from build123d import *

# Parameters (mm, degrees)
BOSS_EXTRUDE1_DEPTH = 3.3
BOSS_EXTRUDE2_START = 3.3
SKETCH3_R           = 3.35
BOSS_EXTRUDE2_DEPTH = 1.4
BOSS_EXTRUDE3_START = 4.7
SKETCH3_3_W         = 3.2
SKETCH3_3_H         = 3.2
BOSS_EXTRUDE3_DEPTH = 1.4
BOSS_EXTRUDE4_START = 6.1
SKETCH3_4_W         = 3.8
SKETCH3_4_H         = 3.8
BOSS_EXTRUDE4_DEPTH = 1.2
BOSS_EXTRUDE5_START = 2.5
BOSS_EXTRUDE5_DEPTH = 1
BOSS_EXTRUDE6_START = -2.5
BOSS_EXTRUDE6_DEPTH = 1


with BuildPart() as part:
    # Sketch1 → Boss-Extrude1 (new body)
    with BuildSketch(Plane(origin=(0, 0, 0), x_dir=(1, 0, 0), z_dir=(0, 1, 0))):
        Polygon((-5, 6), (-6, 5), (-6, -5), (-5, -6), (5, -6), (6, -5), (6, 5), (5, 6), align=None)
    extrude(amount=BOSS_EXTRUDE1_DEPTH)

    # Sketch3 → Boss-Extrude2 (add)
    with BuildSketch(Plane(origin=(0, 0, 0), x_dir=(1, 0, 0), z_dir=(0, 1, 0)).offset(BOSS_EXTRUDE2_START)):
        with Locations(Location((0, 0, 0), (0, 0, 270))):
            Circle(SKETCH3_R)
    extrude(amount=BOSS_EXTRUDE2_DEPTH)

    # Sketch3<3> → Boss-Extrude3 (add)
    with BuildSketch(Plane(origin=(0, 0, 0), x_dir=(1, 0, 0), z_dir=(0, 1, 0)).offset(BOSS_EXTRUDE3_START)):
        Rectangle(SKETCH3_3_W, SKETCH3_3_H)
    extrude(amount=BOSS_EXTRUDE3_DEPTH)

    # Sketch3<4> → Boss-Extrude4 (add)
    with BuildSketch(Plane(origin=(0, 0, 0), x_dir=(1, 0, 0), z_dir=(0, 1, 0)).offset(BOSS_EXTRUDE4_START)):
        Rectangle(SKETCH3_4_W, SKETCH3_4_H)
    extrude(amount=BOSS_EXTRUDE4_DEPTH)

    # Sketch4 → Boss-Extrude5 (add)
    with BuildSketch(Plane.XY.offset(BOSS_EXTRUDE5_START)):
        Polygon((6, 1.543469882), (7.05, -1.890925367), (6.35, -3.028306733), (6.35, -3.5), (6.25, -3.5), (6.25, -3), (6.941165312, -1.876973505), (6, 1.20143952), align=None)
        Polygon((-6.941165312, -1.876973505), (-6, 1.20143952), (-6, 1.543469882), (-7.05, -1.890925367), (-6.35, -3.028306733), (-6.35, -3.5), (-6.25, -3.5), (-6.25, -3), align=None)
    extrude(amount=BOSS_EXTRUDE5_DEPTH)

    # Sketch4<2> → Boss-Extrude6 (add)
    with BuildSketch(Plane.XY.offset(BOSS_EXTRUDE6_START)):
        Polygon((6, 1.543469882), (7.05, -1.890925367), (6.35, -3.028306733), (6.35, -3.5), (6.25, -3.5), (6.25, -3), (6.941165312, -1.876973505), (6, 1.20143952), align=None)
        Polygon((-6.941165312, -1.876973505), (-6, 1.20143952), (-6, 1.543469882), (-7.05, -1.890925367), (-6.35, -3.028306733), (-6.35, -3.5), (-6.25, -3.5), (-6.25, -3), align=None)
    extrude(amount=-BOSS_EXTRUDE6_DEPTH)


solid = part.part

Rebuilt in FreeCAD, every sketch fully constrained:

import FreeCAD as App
import Part
import Sketcher
from FreeCAD import Vector
Q = App.Units.Quantity


def add_polygon(sketch, points):
    """Adds a closed chain of lines whose ends are joined by coincident constraints."""
    first, n = sketch.GeometryCount, len(points)
    for a, b in zip(points, points[1:] + points[:1]):
        sketch.addGeometry(Part.LineSegment(App.Vector(*a, 0), App.Vector(*b, 0)), False)
    for i in range(n):
        sketch.addConstraint(Sketcher.Constraint("Coincident", first + i, 2, first + (i + 1) % n, 1))

doc = App.newDocument("Part")
body = doc.addObject("PartDesign::Body", "Body")

sketch1 = doc.addObject("Sketcher::SketchObject", "Sketch")
body.addObject(sketch1)
sketch1.AttachmentSupport = (doc.XZ_Plane, [""])
sketch1.MapMode = "FlatFace"
add_polygon(sketch1, [(-5, -6), (-6, -5), (-6, 5), (-5, 6), (5, 6), (6, 5), (6, -5), (5, -6)])
sketch1.addConstraint(Sketcher.Constraint("Vertical", 1))
sketch1.addConstraint(Sketcher.Constraint("Horizontal", 3))
sketch1.addConstraint(Sketcher.Constraint("Vertical", 5))
sketch1.addConstraint(Sketcher.Constraint("Horizontal", 7))
sketch1.addConstraint(Sketcher.Constraint("Symmetric", 0, 2, 4, 2, -1, 1))
sketch1.addConstraint(Sketcher.Constraint("Symmetric", 2, 2, 6, 2, -1, 1))
sketch1.addConstraint(Sketcher.Constraint("Perpendicular", 0, 2))
sketch1.addConstraint(Sketcher.Constraint("Perpendicular", 2, 4))
sketch1.addConstraint(Sketcher.Constraint("Perpendicular", 4, 6))
sketch1.addConstraint(Sketcher.Constraint("Horizontal", 1, 2, 4, 2))
sketch1.addConstraint(Sketcher.Constraint("Vertical", 3, 2, 6, 2))
sketch1.addConstraint(Sketcher.Constraint("Equal", 7, 1))
sketch1.addConstraint(Sketcher.Constraint("DistanceX", 3, 1, 3, 2, 10.0))
sketch1.addConstraint(Sketcher.Constraint("DistanceX", 0, 2, -1, 1, 6.0))
pad1 = doc.addObject("PartDesign::Pad", "Pad")
body.addObject(pad1)
pad1.Profile = sketch1
pad1.Length = 3.3
pad1.Reversed = True

sketch2 = doc.addObject("Sketcher::SketchObject", "Sketch001")
body.addObject(sketch2)
sketch2.AttachmentSupport = (doc.XZ_Plane, [""])
sketch2.MapMode = "FlatFace"
sketch2.AttachmentOffset = App.Placement(Vector(0, 0, -3.3), App.Rotation())
sketch2.addGeometry(Part.Circle(Vector(0, 0, 0), Vector(0, 0, 1), 3.35), False)
sketch2.addConstraint(Sketcher.Constraint("Coincident", 0, 3, -1, 1))
sketch2.addConstraint(Sketcher.Constraint("Diameter", 0, 6.7))
pad2 = doc.addObject("PartDesign::Pad", "Pad001")
body.addObject(pad2)
pad2.Profile = sketch2
pad2.Length = 1.4
pad2.Reversed = True

sketch3 = doc.addObject("Sketcher::SketchObject", "Sketch002")
body.addObject(sketch3)
sketch3.AttachmentSupport = (doc.XZ_Plane, [""])
sketch3.MapMode = "FlatFace"
sketch3.AttachmentOffset = App.Placement(Vector(0, 0, -4.7), App.Rotation())
add_polygon(sketch3, [(-1.6, -1.6), (-1.6, 1.6), (1.6, 1.6), (1.6, -1.6)])
sketch3.addConstraint(Sketcher.Constraint("Vertical", 0))
sketch3.addConstraint(Sketcher.Constraint("Horizontal", 1))
sketch3.addConstraint(Sketcher.Constraint("Vertical", 2))
sketch3.addConstraint(Sketcher.Constraint("Horizontal", 3))
sketch3.addConstraint(Sketcher.Constraint("Symmetric", 0, 2, 2, 2, -1, 1))
sketch3.addConstraint(Sketcher.Constraint("Equal", 3, 0))
sketch3.addConstraint(Sketcher.Constraint("DistanceX", 1, 1, 1, 2, 3.2))
pad3 = doc.addObject("PartDesign::Pad", "Pad002")
body.addObject(pad3)
pad3.Profile = sketch3
pad3.Length = 1.4
pad3.Reversed = True

sketch4 = doc.addObject("Sketcher::SketchObject", "Sketch003")
body.addObject(sketch4)
sketch4.AttachmentSupport = (doc.XZ_Plane, [""])
sketch4.MapMode = "FlatFace"
sketch4.AttachmentOffset = App.Placement(Vector(0, 0, -6.1), App.Rotation())
add_polygon(sketch4, [(-1.9, -1.9), (-1.9, 1.9), (1.9, 1.9), (1.9, -1.9)])
sketch4.addConstraint(Sketcher.Constraint("Vertical", 0))
sketch4.addConstraint(Sketcher.Constraint("Horizontal", 1))
sketch4.addConstraint(Sketcher.Constraint("Vertical", 2))
sketch4.addConstraint(Sketcher.Constraint("Horizontal", 3))
sketch4.addConstraint(Sketcher.Constraint("Symmetric", 0, 2, 2, 2, -1, 1))
sketch4.addConstraint(Sketcher.Constraint("Equal", 3, 0))
sketch4.addConstraint(Sketcher.Constraint("DistanceX", 1, 1, 1, 2, 3.8))
pad4 = doc.addObject("PartDesign::Pad", "Pad003")
body.addObject(pad4)
pad4.Profile = sketch4
pad4.Length = 1.2
pad4.Reversed = True

sketch5 = doc.addObject("Sketcher::SketchObject", "Sketch004")
body.addObject(sketch5)
sketch5.AttachmentSupport = (doc.XY_Plane, [""])
sketch5.MapMode = "FlatFace"
sketch5.AttachmentOffset = App.Placement(Vector(0, 0, 2.5), App.Rotation())
add_polygon(sketch5, [(7.05, -1.890925), (6, 1.54347), (6, 1.20144), (6.941165, -1.876974), (6.25, -3), (6.25, -3.5), (6.35, -3.5), (6.35, -3.028307)])
add_polygon(sketch5, [(-6.941165, -1.876974), (-6, 1.20144), (-6, 1.54347), (-7.05, -1.890925), (-6.35, -3.028307), (-6.35, -3.5), (-6.25, -3.5), (-6.25, -3)])
sketch5.addConstraint(Sketcher.Constraint("Vertical", 1))
sketch5.addConstraint(Sketcher.Constraint("Vertical", 4))
sketch5.addConstraint(Sketcher.Constraint("Horizontal", 5))
sketch5.addConstraint(Sketcher.Constraint("Vertical", 6))
sketch5.addConstraint(Sketcher.Constraint("Vertical", 9))
sketch5.addConstraint(Sketcher.Constraint("Vertical", 12))
sketch5.addConstraint(Sketcher.Constraint("Horizontal", 13))
sketch5.addConstraint(Sketcher.Constraint("Vertical", 14))
sketch5.addConstraint(Sketcher.Constraint("Symmetric", 1, 2, 8, 2, -2))
sketch5.addConstraint(Sketcher.Constraint("Symmetric", 7, 2, 10, 2, -2))
sketch5.addConstraint(Sketcher.Constraint("Symmetric", 6, 2, 11, 2, -2))
sketch5.addConstraint(Sketcher.Constraint("Symmetric", 4, 2, 13, 2, -2))
sketch5.addConstraint(Sketcher.Constraint("Symmetric", 2, 2, 15, 2, -2))
sketch5.addConstraint(Sketcher.Constraint("Parallel", 0, 2))
sketch5.addConstraint(Sketcher.Constraint("Parallel", 3, 7))
sketch5.addConstraint(Sketcher.Constraint("Parallel", 8, 10))
sketch5.addConstraint(Sketcher.Constraint("Parallel", 11, 15))
sketch5.addConstraint(Sketcher.Constraint("Angle", 0, Q("107 deg")))
sketch5.addConstraint(Sketcher.Constraint("DistanceX", 5, 1, 5, 2, 0.1))
sketch5.addConstraint(Sketcher.Constraint("DistanceY", 4, 2, 4, 1, 0.5))
sketch5.addConstraint(Sketcher.Constraint("DistanceX", -1, 1, 0, 2, 6.0))
sketch5.addConstraint(Sketcher.Constraint("DistanceY", 3, 2, -1, 1, 3.0))
sketch5.addConstraint(Sketcher.Constraint("DistanceX", 6, 2, 7, 2, 0.7))
sketch5.addConstraint(Sketcher.Constraint("DistanceX", 10, 2, 3, 2, 13.3))
sketch5.addConstraint(Sketcher.Constraint("DistanceY", 1, 2, 1, 1, 0.34203))
sketch5.addConstraint(Sketcher.Constraint("Distance", 2, 3.219071))
sketch5.addConstraint(Sketcher.Constraint("Distance", 7, 1.335528))
pad5 = doc.addObject("PartDesign::Pad", "Pad004")
body.addObject(pad5)
pad5.Profile = sketch5
pad5.Length = 1

sketch6 = doc.addObject("Sketcher::SketchObject", "Sketch005")
body.addObject(sketch6)
sketch6.AttachmentSupport = (doc.XY_Plane, [""])
sketch6.MapMode = "FlatFace"
sketch6.AttachmentOffset = App.Placement(Vector(0, 0, -2.5), App.Rotation())
add_polygon(sketch6, [(7.05, -1.890925), (6, 1.54347), (6, 1.20144), (6.941165, -1.876974), (6.25, -3), (6.25, -3.5), (6.35, -3.5), (6.35, -3.028307)])
add_polygon(sketch6, [(-6.941165, -1.876974), (-6, 1.20144), (-6, 1.54347), (-7.05, -1.890925), (-6.35, -3.028307), (-6.35, -3.5), (-6.25, -3.5), (-6.25, -3)])
sketch6.addConstraint(Sketcher.Constraint("Vertical", 1))
sketch6.addConstraint(Sketcher.Constraint("Vertical", 4))
sketch6.addConstraint(Sketcher.Constraint("Horizontal", 5))
sketch6.addConstraint(Sketcher.Constraint("Vertical", 6))
sketch6.addConstraint(Sketcher.Constraint("Vertical", 9))
sketch6.addConstraint(Sketcher.Constraint("Vertical", 12))
sketch6.addConstraint(Sketcher.Constraint("Horizontal", 13))
sketch6.addConstraint(Sketcher.Constraint("Vertical", 14))
sketch6.addConstraint(Sketcher.Constraint("Symmetric", 1, 2, 8, 2, -2))
sketch6.addConstraint(Sketcher.Constraint("Symmetric", 7, 2, 10, 2, -2))
sketch6.addConstraint(Sketcher.Constraint("Symmetric", 6, 2, 11, 2, -2))
sketch6.addConstraint(Sketcher.Constraint("Symmetric", 4, 2, 13, 2, -2))
sketch6.addConstraint(Sketcher.Constraint("Symmetric", 2, 2, 15, 2, -2))
sketch6.addConstraint(Sketcher.Constraint("Parallel", 0, 2))
sketch6.addConstraint(Sketcher.Constraint("Parallel", 3, 7))
sketch6.addConstraint(Sketcher.Constraint("Parallel", 8, 10))
sketch6.addConstraint(Sketcher.Constraint("Parallel", 11, 15))
sketch6.addConstraint(Sketcher.Constraint("Angle", 0, Q("107 deg")))
sketch6.addConstraint(Sketcher.Constraint("DistanceX", 5, 1, 5, 2, 0.1))
sketch6.addConstraint(Sketcher.Constraint("DistanceY", 4, 2, 4, 1, 0.5))
sketch6.addConstraint(Sketcher.Constraint("DistanceX", -1, 1, 0, 2, 6.0))
sketch6.addConstraint(Sketcher.Constraint("DistanceY", 3, 2, -1, 1, 3.0))
sketch6.addConstraint(Sketcher.Constraint("DistanceX", 6, 2, 7, 2, 0.7))
sketch6.addConstraint(Sketcher.Constraint("DistanceX", 10, 2, 3, 2, 13.3))
sketch6.addConstraint(Sketcher.Constraint("DistanceY", 1, 2, 1, 1, 0.34203))
sketch6.addConstraint(Sketcher.Constraint("Distance", 2, 3.219071))
sketch6.addConstraint(Sketcher.Constraint("Distance", 7, 1.335528))
pad6 = doc.addObject("PartDesign::Pad", "Pad005")
body.addObject(pad6)
pad6.Profile = sketch6
pad6.Length = 1
pad6.Reversed = True

doc.recompute()
